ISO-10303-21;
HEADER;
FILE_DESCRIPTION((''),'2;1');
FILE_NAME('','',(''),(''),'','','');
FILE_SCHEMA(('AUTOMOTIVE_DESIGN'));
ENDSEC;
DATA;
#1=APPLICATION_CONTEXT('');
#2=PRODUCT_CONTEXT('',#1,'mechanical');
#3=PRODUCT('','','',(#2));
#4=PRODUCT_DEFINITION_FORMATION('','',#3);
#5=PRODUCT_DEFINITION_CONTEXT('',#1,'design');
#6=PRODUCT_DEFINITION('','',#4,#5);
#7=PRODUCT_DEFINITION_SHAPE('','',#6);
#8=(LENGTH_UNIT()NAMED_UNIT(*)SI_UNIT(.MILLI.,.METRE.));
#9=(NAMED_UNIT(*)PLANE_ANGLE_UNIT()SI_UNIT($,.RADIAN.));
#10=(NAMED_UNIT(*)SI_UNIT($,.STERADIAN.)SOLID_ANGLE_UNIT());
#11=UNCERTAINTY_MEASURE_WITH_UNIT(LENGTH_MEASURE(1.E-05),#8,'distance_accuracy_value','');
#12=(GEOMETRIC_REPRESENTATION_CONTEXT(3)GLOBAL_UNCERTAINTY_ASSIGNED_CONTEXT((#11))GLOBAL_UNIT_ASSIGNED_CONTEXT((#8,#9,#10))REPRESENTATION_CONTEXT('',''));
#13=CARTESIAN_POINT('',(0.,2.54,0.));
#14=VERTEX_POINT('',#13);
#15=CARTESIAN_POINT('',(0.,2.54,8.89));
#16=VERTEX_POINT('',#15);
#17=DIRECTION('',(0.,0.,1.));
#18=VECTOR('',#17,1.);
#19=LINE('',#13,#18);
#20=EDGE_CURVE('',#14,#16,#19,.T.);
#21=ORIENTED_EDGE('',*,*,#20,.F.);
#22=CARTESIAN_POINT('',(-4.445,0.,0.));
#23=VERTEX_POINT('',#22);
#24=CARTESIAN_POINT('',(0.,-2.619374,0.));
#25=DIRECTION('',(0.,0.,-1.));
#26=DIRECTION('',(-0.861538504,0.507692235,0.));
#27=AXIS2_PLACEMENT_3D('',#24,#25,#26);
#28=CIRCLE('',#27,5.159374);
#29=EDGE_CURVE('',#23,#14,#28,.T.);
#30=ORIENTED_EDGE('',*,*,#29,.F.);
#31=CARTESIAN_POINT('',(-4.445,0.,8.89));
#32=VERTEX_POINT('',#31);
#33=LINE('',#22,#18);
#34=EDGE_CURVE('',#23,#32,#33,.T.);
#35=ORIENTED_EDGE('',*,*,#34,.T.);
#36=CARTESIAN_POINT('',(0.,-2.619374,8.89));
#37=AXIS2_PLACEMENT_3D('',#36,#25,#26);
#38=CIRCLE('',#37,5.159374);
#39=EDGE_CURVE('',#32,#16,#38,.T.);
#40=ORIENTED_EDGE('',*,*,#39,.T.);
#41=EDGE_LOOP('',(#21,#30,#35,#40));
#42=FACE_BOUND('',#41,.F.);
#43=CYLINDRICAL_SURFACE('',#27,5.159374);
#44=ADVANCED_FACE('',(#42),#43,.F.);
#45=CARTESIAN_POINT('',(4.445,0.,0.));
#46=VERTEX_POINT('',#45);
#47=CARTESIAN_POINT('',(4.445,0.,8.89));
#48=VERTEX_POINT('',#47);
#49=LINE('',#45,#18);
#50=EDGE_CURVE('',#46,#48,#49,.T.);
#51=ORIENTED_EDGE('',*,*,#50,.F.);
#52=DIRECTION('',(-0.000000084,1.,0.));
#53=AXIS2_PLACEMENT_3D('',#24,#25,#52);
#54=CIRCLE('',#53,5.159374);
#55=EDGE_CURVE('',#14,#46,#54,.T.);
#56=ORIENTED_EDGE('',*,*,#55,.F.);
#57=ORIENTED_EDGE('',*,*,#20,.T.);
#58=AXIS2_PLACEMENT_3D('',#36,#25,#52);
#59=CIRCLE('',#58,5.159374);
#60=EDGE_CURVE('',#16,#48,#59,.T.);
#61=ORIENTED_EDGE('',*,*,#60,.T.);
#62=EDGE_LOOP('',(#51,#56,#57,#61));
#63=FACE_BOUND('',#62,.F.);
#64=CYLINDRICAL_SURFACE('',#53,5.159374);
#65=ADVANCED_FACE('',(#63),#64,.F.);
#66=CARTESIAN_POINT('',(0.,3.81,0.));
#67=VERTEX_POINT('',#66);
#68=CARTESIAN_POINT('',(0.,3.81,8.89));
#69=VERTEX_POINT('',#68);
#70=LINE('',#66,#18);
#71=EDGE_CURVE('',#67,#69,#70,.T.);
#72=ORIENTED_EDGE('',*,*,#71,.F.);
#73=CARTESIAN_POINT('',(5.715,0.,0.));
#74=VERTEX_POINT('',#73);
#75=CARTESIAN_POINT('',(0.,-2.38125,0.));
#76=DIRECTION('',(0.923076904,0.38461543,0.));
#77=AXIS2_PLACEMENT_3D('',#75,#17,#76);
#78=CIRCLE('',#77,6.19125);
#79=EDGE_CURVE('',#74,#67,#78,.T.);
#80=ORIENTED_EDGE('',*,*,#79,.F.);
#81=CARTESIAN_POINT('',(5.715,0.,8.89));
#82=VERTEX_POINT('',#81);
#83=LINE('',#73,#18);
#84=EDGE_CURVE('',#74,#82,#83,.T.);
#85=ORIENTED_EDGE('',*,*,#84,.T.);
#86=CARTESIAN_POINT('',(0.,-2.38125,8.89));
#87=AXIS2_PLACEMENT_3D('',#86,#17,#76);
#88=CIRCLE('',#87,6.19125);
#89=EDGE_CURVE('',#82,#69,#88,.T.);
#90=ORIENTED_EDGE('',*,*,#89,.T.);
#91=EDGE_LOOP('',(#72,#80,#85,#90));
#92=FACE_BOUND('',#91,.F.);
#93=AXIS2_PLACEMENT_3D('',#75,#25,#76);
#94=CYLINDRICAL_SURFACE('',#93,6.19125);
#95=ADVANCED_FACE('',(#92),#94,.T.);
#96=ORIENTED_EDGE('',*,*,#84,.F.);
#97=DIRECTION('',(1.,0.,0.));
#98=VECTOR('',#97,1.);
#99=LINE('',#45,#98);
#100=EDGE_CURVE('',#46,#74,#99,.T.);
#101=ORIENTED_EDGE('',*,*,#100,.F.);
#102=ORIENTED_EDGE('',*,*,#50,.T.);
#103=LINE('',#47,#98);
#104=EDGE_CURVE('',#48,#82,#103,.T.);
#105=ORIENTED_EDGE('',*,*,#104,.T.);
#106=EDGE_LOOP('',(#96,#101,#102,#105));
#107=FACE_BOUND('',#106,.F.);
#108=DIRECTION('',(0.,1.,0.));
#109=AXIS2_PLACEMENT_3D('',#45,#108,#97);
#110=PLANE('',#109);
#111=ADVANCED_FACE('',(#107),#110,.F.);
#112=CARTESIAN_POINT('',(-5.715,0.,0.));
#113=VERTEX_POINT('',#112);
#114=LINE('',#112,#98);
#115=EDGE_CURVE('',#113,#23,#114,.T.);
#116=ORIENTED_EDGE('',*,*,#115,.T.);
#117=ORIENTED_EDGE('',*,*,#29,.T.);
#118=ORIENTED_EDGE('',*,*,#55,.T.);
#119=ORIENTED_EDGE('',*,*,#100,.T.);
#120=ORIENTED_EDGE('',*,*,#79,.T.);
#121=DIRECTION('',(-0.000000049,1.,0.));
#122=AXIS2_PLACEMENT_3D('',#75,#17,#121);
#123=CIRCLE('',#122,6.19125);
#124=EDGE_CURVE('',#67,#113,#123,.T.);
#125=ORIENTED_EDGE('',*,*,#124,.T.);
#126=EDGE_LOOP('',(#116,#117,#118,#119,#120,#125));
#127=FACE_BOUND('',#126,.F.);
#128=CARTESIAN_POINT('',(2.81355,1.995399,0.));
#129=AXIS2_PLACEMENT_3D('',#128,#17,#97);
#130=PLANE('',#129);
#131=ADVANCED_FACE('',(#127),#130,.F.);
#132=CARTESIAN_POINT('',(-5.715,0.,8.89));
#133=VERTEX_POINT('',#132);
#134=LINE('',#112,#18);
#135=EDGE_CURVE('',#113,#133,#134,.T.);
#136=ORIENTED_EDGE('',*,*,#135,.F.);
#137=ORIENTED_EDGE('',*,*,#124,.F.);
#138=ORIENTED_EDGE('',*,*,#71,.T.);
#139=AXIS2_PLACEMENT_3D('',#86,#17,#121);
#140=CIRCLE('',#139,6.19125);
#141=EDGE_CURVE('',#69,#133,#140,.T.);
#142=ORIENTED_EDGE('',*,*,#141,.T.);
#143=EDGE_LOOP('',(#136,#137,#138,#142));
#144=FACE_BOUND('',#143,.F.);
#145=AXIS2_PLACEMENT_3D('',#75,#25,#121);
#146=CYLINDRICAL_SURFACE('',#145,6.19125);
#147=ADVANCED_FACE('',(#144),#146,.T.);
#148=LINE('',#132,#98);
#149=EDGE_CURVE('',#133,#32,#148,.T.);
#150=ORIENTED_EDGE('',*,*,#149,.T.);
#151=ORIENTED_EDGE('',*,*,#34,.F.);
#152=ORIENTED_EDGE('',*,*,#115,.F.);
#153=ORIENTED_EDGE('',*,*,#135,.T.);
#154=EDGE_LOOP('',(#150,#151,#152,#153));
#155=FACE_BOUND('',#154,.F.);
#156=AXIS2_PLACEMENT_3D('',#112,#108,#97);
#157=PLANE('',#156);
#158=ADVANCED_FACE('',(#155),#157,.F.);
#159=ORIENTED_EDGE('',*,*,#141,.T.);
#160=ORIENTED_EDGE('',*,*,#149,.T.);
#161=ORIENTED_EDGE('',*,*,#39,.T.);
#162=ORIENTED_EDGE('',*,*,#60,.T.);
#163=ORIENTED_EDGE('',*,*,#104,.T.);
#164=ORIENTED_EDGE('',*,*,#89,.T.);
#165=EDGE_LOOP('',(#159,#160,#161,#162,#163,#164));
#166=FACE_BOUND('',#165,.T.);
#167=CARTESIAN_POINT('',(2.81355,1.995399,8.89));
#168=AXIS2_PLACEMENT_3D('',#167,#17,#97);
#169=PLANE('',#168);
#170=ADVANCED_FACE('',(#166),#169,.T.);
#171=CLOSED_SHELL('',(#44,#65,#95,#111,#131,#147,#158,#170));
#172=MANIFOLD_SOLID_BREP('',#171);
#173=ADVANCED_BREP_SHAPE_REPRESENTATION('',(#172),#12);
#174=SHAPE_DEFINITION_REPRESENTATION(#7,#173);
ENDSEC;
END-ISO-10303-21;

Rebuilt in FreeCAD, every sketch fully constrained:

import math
import FreeCAD as App
import Part
import Sketcher

V = App.Vector
Q = App.Units.Quantity

doc = App.newDocument("Part")
body = doc.addObject("PartDesign::Body", "Body")

# Sketch on XY plane
sketch1 = doc.addObject("Sketcher::SketchObject", "Sketch")
body.addObject(sketch1)
sketch1.AttachmentSupport = (doc.XY_Plane, [""])
sketch1.MapMode = "FlatFace"
sketch1.addGeometry(Part.LineSegment(V(4.4, 0, 0), V(5.7, 0, 0)), False)
sketch1.addGeometry(Part.ArcOfCircle(Part.Circle(V(0, -2.4, 0), V(0, 0, 1), 6.2), math.radians(23), math.radians(90)), False)
sketch1.addGeometry(Part.ArcOfCircle(Part.Circle(V(0, -2.4, 0), V(0, 0, 1), 6.2), math.radians(90), math.radians(157)), False)
sketch1.addGeometry(Part.LineSegment(V(-5.7, 0, 0), V(-4.4, 0, 0)), False)
sketch1.addGeometry(Part.ArcOfCircle(Part.Circle(V(0, -2.6, 0), V(0, 0, 1), 5.2), math.radians(90), math.radians(149)), False)
sketch1.addGeometry(Part.ArcOfCircle(Part.Circle(V(0, -2.6, 0), V(0, 0, 1), 5.2), math.radians(31), math.radians(90)), False)
sketch1.addConstraint(Sketcher.Constraint("Coincident", 0, 2, 1, 1))
sketch1.addConstraint(Sketcher.Constraint("Tangent", 1, 2, 2, 1))
sketch1.addConstraint(Sketcher.Constraint("Coincident", 2, 2, 3, 1))
sketch1.addConstraint(Sketcher.Constraint("Coincident", 3, 2, 4, 2))
sketch1.addConstraint(Sketcher.Constraint("Tangent", 4, 1, 5, 2))
sketch1.addConstraint(Sketcher.Constraint("Coincident", 5, 1, 0, 1))
sketch1.addConstraint(Sketcher.Constraint("Horizontal", 0))
sketch1.addConstraint(Sketcher.Constraint("Horizontal", 3))
sketch1.addConstraint(Sketcher.Constraint("Equal", 1, 2))
sketch1.addConstraint(Sketcher.Constraint("Equal", 4, 5))
sketch1.addConstraint(Sketcher.Constraint("Symmetric", 0, 2, 2, 2, -1, 1))
sketch1.addConstraint(Sketcher.Constraint("Symmetric", 3, 2, 5, 1, -2))
sketch1.addConstraint(Sketcher.Constraint("PointOnObject", 1, 2, -2))
sketch1.addConstraint(Sketcher.Constraint("PointOnObject", 4, 1, -2))
sketch1.addConstraint(Sketcher.Constraint("Radius", 4, Q("0.203125 in")))
sketch1.addConstraint(Sketcher.Constraint("DistanceX", 0, 1, 0, 2, Q("0.05 in")))
sketch1.addConstraint(Sketcher.Constraint("DistanceY", -1, 1, 4, 1, Q("0.1 in")))
sketch1.addConstraint(Sketcher.Constraint("DistanceY", -1, 1, 1, 2, Q("0.15 in")))
pad1 = doc.addObject("PartDesign::Pad", "Pad")
body.addObject(pad1)
pad1.Profile = sketch1
pad1.Length = Q("0.35 in")

doc.recompute()
